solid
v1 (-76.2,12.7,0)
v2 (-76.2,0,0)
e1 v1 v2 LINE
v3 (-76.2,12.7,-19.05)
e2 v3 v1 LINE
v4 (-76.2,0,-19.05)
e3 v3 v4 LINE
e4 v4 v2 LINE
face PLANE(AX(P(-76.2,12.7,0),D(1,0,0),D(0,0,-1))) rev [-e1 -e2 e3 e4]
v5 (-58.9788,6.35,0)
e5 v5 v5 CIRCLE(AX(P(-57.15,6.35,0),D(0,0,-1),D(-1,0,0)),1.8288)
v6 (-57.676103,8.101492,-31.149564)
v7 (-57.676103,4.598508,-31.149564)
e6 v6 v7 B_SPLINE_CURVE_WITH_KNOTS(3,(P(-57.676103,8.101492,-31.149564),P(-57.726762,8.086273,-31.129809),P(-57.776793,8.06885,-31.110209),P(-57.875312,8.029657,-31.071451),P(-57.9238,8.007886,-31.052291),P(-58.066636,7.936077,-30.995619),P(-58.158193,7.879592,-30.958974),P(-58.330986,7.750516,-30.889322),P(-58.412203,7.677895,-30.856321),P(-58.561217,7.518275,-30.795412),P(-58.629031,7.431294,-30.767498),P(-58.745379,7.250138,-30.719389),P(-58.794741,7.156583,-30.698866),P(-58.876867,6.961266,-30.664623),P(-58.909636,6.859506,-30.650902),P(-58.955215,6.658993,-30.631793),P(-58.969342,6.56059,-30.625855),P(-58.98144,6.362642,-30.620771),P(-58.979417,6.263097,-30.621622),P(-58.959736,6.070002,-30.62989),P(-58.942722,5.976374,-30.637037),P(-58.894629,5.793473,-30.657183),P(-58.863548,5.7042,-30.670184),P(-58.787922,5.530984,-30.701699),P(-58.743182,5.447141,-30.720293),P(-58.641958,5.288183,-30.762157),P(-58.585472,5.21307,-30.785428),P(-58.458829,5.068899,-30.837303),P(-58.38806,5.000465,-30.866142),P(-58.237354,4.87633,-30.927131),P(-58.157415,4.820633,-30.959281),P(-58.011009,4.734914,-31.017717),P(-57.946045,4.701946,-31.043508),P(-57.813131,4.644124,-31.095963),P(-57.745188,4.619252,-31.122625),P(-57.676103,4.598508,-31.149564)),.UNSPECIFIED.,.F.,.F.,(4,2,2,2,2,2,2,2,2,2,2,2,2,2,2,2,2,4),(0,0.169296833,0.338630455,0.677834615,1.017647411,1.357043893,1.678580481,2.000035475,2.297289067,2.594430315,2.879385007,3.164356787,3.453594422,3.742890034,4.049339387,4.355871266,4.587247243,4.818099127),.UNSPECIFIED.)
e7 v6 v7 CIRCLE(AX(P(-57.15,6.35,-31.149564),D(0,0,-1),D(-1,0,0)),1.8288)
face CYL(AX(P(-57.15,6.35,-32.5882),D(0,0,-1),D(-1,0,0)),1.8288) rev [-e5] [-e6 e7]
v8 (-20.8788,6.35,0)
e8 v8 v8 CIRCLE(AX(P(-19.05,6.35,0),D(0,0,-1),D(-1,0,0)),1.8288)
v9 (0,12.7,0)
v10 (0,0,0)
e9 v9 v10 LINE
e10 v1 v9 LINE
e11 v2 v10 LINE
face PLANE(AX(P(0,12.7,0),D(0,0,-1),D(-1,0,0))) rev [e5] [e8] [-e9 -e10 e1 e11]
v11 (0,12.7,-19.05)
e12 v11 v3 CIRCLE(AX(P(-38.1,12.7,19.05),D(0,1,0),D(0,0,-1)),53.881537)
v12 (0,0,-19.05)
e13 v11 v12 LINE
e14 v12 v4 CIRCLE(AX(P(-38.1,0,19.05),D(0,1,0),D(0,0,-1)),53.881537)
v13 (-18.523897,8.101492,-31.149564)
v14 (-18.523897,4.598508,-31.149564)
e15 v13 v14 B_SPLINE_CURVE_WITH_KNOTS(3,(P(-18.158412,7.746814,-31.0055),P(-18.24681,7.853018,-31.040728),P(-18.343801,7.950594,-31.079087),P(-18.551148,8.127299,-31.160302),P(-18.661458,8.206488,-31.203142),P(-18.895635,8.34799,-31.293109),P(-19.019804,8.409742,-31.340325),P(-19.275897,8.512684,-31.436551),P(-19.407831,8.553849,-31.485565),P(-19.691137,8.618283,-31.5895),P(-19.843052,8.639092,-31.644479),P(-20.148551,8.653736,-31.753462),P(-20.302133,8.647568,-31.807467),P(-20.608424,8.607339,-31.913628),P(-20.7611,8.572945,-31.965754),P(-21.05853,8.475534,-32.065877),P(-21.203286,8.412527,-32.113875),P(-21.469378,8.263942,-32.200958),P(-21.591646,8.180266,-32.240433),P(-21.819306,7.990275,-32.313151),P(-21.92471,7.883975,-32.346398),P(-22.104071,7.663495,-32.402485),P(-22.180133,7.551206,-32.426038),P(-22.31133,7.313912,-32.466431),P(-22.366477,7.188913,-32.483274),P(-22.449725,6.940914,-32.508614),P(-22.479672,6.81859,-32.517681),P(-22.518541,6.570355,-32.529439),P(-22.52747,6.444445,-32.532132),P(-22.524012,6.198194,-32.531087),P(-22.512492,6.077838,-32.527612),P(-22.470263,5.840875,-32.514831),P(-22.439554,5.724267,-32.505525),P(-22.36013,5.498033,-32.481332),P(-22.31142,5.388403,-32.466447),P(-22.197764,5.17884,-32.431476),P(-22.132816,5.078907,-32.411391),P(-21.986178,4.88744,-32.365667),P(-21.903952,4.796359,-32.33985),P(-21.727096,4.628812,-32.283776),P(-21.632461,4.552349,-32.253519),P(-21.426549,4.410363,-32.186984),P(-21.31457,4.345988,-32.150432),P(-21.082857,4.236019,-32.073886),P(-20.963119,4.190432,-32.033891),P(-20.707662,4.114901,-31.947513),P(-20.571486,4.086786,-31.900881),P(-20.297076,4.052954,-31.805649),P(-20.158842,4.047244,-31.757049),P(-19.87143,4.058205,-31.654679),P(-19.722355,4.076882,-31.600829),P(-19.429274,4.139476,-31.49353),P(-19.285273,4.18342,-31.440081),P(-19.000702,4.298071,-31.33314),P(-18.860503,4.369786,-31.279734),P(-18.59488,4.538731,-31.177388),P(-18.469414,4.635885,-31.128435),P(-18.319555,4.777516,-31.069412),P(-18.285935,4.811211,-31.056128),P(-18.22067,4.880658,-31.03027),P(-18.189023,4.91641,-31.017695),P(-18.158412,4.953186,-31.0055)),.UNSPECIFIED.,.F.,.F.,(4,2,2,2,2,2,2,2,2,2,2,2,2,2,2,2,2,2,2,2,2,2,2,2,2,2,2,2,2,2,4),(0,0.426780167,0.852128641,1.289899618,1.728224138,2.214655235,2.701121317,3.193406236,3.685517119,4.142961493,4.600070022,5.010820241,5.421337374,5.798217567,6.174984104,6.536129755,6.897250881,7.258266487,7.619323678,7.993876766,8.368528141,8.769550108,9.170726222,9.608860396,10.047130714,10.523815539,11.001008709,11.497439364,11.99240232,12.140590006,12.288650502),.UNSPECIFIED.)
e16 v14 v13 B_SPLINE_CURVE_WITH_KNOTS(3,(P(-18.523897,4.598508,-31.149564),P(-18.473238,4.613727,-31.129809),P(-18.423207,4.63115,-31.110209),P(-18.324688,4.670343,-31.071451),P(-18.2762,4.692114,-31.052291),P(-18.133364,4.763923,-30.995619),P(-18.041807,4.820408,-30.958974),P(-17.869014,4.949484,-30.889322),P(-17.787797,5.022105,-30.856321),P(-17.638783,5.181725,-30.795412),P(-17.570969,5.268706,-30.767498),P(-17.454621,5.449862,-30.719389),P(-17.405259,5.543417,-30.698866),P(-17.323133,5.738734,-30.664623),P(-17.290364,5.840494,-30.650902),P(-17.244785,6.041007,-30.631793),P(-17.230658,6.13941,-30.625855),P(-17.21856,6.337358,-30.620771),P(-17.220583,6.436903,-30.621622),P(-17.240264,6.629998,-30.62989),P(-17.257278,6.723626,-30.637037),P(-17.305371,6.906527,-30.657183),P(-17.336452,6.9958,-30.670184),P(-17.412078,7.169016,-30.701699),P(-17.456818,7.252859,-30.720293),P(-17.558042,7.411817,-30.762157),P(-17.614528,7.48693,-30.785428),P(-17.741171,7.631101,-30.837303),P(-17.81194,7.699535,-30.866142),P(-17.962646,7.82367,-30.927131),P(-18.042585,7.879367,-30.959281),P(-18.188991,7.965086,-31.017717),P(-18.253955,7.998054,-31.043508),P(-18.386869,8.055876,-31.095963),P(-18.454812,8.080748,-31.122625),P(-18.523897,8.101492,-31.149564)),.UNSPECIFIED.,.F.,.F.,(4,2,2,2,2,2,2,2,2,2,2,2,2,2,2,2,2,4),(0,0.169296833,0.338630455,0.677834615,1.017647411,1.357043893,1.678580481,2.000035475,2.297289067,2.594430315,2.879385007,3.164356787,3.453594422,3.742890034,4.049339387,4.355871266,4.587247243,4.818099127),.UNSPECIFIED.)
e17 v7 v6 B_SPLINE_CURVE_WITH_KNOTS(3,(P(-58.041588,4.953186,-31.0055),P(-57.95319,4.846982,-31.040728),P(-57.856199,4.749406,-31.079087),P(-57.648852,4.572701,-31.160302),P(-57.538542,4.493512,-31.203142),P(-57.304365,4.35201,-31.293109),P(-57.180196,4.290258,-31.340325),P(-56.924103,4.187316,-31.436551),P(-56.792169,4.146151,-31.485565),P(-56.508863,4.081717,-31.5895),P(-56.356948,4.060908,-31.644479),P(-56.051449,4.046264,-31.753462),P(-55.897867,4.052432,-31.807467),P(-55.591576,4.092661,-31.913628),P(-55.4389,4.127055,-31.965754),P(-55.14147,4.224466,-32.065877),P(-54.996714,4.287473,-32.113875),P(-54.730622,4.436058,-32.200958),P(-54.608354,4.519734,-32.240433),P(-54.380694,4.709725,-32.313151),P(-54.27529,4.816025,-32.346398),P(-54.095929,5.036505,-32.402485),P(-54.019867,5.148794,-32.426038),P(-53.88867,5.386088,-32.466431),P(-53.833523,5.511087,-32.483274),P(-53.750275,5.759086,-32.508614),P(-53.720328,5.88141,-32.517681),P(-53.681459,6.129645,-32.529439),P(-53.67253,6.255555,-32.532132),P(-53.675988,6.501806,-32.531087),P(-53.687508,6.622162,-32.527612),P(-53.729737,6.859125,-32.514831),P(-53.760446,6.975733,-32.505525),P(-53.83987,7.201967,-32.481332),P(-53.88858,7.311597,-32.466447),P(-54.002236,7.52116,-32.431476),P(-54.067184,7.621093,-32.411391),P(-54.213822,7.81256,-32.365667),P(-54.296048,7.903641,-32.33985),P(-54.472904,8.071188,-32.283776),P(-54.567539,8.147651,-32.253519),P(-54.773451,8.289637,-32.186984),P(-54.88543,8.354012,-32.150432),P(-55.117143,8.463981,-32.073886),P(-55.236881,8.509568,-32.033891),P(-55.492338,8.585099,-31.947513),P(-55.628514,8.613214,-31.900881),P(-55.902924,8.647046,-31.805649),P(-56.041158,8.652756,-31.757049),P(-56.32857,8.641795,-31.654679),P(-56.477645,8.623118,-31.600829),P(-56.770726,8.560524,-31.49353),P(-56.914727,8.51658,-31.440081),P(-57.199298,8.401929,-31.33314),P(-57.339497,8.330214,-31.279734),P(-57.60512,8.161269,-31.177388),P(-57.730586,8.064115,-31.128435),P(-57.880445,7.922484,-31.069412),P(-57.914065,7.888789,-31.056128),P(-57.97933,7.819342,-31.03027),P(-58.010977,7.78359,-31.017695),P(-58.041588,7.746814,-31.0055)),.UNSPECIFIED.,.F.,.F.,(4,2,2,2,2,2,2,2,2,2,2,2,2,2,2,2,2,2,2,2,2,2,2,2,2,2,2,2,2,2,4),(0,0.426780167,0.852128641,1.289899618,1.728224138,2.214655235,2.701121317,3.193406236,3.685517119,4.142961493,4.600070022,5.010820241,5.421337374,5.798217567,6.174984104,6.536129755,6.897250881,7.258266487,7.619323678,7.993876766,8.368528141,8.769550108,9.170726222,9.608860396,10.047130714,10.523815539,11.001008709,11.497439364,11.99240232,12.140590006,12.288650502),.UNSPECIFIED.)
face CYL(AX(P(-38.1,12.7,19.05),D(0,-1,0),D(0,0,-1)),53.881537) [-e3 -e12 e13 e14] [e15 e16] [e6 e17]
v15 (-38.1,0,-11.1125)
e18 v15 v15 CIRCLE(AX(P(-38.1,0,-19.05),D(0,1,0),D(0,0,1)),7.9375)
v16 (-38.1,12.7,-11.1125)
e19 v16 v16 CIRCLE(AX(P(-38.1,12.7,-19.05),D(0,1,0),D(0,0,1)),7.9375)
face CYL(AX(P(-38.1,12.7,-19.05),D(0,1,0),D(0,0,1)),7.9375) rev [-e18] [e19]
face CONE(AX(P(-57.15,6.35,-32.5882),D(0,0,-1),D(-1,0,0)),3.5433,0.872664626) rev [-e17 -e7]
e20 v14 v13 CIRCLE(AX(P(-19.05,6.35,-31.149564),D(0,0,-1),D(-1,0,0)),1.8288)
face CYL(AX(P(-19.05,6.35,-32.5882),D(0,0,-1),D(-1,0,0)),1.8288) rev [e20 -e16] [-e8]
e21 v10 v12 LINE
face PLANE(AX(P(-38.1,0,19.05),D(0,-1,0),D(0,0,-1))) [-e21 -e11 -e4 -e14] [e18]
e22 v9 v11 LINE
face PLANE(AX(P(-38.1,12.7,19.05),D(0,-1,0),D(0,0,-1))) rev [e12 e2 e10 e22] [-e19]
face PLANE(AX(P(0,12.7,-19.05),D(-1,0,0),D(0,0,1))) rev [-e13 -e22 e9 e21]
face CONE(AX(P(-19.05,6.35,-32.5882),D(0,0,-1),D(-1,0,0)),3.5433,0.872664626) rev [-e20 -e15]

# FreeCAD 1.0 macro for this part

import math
import FreeCAD as App
import Part
import Sketcher
from FreeCAD import Vector
Q = App.Units.Quantity

doc = App.newDocument("Part")
body = doc.addObject("PartDesign::Body", "Body")

sketch1 = doc.addObject("Sketcher::SketchObject", "Sketch")
body.addObject(sketch1)
sketch1.AttachmentSupport = (doc.XZ_Plane, [""])
sketch1.MapMode = "FlatFace"
sketch1.addGeometry([
    Part.LineSegment(Vector(-76.2, 0, 0), Vector(0, 0, 0)),
    Part.LineSegment(Vector(0, 0, 0), Vector(0, -19.05, 0)),
    Part.ArcOfCircle(Part.Circle(Vector(-38.1, 19.05, 0), Vector(0, 0, 1), 53.881537), math.radians(-135), math.radians(-45)),
    Part.LineSegment(Vector(-76.2, -19.05, 0), Vector(-76.2, 0, 0)),
], False)
sketch1.addConstraint([
    Sketcher.Constraint("Coincident", 0, 2, 1, 1),
    Sketcher.Constraint("Coincident", 1, 2, 2, 2),
    Sketcher.Constraint("Coincident", 2, 1, 3, 1),
    Sketcher.Constraint("Coincident", 3, 2, 0, 1),
    Sketcher.Constraint("Horizontal", 0),
    Sketcher.Constraint("Vertical", 1),
    Sketcher.Constraint("Vertical", 3),
    Sketcher.Constraint("Coincident", 0, 2, -1, 1),
    Sketcher.Constraint("Horizontal", 1, 2, 2, 1),
    Sketcher.Constraint("DistanceX", 0, 1, 0, 2, Q("3 in")),
    Sketcher.Constraint("DistanceY", 1, 2, 1, 1, Q("0.75 in")),
    Sketcher.Constraint("DistanceY", 1, 2, 2, 3, Q("1.5 in")),
])
pad1 = doc.addObject("PartDesign::Pad", "Pad")
body.addObject(pad1)
pad1.Profile = sketch1
pad1.Length = Q("0.5 in")
pad1.Reversed = True

sketch2 = doc.addObject("Sketcher::SketchObject", "Sketch001")
body.addObject(sketch2)
sketch2.AttachmentSupport = (doc.XZ_Plane, [""])
sketch2.MapMode = "FlatFace"
sketch2.AttachmentOffset = App.Placement(Vector(0, 0, -0.5 * 25.4), App.Rotation())
sketch2.addGeometry(Part.Circle(Vector(-38.1, -19.05, 0), Vector(0, 0, 1), 7.9375), False)
sketch2.addConstraint([
    Sketcher.Constraint("Diameter", 0, Q("0.625 in")),
    Sketcher.Constraint("DistanceX", 0, 3, -1, 1, Q("1.5 in")),
    Sketcher.Constraint("DistanceY", 0, 3, -1, 1, Q("0.75 in")),
])
doc.recompute()
hole = doc.addObject("PartDesign::Hole", "Hole")
body.addObject(hole)
hole.Profile = sketch2
hole.ThreadType = "None"
hole.Diameter = Q("0.625 in")
hole.DepthType = "ThroughAll"
hole.Reversed = True

sketch3 = doc.addObject("Sketcher::SketchObject", "Sketch002")
body.addObject(sketch3)
sketch3.AttachmentSupport = (doc.XY_Plane, [""])
sketch3.MapMode = "FlatFace"
sketch3.AttachmentOffset = App.Placement(Vector(0, 0, -1.283 * 25.4), App.Rotation())
sketch3.addGeometry([
    Part.Circle(Vector(-19.05, 6.35, 0), Vector(0, 0, 1), 1.8288),
    Part.Circle(Vector(-57.15, 6.35, 0), Vector(0, 0, 1), 1.8288),
], False)
sketch3.addConstraint([
    Sketcher.Constraint("Equal", 0, 1),
    Sketcher.Constraint("Horizontal", 0, 3, 1, 3),
    Sketcher.Constraint("Diameter", 0, Q("0.144 in")),
    Sketcher.Constraint("DistanceX", 1, 3, 0, 3, Q("1.5 in")),
    Sketcher.Constraint("DistanceX", 0, 3, -1, 1, Q("0.75 in")),
    Sketcher.Constraint("DistanceY", -1, 1, 0, 3, Q("0.25 in")),
])
doc.recompute()
hole2 = doc.addObject("PartDesign::Hole", "Hole001")
body.addObject(hole2)
hole2.Profile = sketch3
hole2.ThreadType = "None"
hole2.Diameter = Q("0.144 in")
hole2.DepthType = "ThroughAll"
hole2.HoleCutType = "Countersink"
hole2.HoleCutDiameter = Q("0.279 in")
hole2.HoleCutCountersinkAngle = 100
hole2.Reversed = True

doc.recompute()
